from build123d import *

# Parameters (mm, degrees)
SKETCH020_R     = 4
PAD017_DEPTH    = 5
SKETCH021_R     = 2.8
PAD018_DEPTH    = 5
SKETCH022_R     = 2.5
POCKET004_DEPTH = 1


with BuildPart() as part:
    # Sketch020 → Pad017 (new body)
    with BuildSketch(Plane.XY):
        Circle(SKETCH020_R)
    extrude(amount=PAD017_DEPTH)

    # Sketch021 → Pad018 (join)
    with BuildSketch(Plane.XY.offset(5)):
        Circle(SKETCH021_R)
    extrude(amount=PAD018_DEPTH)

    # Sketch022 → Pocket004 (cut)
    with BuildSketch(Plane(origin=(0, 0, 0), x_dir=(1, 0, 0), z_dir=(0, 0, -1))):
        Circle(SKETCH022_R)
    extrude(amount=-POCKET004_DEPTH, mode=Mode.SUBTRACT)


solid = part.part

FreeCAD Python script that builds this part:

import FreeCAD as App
import Part
import Sketcher
from FreeCAD import Vector
Q = App.Units.Quantity

doc = App.newDocument("Part")
body = doc.addObject("PartDesign::Body", "Body")

# Sketch on XY plane
sketch1 = doc.addObject("Sketcher::SketchObject", "Sketch")
body.addObject(sketch1)
sketch1.AttachmentSupport = (doc.XY_Plane, [""])
sketch1.MapMode = "FlatFace"
sketch1.addGeometry(Part.Circle(Vector(0, 0, 0), Vector(0, 0, 1), 4), False)
sketch1.addConstraint([
    Sketcher.Constraint("Coincident", 0, 3, -1, 1),
    Sketcher.Constraint("Diameter", 0, Q("8 mm")),
])
pad1 = doc.addObject("PartDesign::Pad", "Pad")
body.addObject(pad1)
pad1.Profile = sketch1
pad1.Length = 5

# Sketch on XY plane
sketch2 = doc.addObject("Sketcher::SketchObject", "Sketch001")
body.addObject(sketch2)
sketch2.AttachmentSupport = (doc.XY_Plane, [""])
sketch2.MapMode = "FlatFace"
sketch2.AttachmentOffset = App.Placement(Vector(0, 0, 5), App.Rotation())
sketch2.addGeometry(Part.Circle(Vector(0, 0, 0), Vector(0, 0, 1), 2.8), False)
sketch2.addConstraint([
    Sketcher.Constraint("Coincident", 0, 3, -1, 1),
    Sketcher.Constraint("Diameter", 0, Q("5.6 mm")),
])
pad2 = doc.addObject("PartDesign::Pad", "Pad001")
body.addObject(pad2)
pad2.Profile = sketch2
pad2.Length = 5

# Sketch on XY plane
sketch3 = doc.addObject("Sketcher::SketchObject", "Sketch002")
body.addObject(sketch3)
sketch3.AttachmentSupport = (doc.XY_Plane, [""])
sketch3.MapMode = "FlatFace"
sketch3.addGeometry(Part.Circle(Vector(0, 0, 0), Vector(0, 0, 1), 2.5), False)
sketch3.addConstraint([
    Sketcher.Constraint("Coincident", 0, 3, -1, 1),
    Sketcher.Constraint("Diameter", 0, Q("5 mm")),
])
pocket1 = doc.addObject("PartDesign::Pocket", "Pocket")
body.addObject(pocket1)
pocket1.Profile = sketch3
pocket1.Length = 1
pocket1.Reversed = True

doc.recompute()
